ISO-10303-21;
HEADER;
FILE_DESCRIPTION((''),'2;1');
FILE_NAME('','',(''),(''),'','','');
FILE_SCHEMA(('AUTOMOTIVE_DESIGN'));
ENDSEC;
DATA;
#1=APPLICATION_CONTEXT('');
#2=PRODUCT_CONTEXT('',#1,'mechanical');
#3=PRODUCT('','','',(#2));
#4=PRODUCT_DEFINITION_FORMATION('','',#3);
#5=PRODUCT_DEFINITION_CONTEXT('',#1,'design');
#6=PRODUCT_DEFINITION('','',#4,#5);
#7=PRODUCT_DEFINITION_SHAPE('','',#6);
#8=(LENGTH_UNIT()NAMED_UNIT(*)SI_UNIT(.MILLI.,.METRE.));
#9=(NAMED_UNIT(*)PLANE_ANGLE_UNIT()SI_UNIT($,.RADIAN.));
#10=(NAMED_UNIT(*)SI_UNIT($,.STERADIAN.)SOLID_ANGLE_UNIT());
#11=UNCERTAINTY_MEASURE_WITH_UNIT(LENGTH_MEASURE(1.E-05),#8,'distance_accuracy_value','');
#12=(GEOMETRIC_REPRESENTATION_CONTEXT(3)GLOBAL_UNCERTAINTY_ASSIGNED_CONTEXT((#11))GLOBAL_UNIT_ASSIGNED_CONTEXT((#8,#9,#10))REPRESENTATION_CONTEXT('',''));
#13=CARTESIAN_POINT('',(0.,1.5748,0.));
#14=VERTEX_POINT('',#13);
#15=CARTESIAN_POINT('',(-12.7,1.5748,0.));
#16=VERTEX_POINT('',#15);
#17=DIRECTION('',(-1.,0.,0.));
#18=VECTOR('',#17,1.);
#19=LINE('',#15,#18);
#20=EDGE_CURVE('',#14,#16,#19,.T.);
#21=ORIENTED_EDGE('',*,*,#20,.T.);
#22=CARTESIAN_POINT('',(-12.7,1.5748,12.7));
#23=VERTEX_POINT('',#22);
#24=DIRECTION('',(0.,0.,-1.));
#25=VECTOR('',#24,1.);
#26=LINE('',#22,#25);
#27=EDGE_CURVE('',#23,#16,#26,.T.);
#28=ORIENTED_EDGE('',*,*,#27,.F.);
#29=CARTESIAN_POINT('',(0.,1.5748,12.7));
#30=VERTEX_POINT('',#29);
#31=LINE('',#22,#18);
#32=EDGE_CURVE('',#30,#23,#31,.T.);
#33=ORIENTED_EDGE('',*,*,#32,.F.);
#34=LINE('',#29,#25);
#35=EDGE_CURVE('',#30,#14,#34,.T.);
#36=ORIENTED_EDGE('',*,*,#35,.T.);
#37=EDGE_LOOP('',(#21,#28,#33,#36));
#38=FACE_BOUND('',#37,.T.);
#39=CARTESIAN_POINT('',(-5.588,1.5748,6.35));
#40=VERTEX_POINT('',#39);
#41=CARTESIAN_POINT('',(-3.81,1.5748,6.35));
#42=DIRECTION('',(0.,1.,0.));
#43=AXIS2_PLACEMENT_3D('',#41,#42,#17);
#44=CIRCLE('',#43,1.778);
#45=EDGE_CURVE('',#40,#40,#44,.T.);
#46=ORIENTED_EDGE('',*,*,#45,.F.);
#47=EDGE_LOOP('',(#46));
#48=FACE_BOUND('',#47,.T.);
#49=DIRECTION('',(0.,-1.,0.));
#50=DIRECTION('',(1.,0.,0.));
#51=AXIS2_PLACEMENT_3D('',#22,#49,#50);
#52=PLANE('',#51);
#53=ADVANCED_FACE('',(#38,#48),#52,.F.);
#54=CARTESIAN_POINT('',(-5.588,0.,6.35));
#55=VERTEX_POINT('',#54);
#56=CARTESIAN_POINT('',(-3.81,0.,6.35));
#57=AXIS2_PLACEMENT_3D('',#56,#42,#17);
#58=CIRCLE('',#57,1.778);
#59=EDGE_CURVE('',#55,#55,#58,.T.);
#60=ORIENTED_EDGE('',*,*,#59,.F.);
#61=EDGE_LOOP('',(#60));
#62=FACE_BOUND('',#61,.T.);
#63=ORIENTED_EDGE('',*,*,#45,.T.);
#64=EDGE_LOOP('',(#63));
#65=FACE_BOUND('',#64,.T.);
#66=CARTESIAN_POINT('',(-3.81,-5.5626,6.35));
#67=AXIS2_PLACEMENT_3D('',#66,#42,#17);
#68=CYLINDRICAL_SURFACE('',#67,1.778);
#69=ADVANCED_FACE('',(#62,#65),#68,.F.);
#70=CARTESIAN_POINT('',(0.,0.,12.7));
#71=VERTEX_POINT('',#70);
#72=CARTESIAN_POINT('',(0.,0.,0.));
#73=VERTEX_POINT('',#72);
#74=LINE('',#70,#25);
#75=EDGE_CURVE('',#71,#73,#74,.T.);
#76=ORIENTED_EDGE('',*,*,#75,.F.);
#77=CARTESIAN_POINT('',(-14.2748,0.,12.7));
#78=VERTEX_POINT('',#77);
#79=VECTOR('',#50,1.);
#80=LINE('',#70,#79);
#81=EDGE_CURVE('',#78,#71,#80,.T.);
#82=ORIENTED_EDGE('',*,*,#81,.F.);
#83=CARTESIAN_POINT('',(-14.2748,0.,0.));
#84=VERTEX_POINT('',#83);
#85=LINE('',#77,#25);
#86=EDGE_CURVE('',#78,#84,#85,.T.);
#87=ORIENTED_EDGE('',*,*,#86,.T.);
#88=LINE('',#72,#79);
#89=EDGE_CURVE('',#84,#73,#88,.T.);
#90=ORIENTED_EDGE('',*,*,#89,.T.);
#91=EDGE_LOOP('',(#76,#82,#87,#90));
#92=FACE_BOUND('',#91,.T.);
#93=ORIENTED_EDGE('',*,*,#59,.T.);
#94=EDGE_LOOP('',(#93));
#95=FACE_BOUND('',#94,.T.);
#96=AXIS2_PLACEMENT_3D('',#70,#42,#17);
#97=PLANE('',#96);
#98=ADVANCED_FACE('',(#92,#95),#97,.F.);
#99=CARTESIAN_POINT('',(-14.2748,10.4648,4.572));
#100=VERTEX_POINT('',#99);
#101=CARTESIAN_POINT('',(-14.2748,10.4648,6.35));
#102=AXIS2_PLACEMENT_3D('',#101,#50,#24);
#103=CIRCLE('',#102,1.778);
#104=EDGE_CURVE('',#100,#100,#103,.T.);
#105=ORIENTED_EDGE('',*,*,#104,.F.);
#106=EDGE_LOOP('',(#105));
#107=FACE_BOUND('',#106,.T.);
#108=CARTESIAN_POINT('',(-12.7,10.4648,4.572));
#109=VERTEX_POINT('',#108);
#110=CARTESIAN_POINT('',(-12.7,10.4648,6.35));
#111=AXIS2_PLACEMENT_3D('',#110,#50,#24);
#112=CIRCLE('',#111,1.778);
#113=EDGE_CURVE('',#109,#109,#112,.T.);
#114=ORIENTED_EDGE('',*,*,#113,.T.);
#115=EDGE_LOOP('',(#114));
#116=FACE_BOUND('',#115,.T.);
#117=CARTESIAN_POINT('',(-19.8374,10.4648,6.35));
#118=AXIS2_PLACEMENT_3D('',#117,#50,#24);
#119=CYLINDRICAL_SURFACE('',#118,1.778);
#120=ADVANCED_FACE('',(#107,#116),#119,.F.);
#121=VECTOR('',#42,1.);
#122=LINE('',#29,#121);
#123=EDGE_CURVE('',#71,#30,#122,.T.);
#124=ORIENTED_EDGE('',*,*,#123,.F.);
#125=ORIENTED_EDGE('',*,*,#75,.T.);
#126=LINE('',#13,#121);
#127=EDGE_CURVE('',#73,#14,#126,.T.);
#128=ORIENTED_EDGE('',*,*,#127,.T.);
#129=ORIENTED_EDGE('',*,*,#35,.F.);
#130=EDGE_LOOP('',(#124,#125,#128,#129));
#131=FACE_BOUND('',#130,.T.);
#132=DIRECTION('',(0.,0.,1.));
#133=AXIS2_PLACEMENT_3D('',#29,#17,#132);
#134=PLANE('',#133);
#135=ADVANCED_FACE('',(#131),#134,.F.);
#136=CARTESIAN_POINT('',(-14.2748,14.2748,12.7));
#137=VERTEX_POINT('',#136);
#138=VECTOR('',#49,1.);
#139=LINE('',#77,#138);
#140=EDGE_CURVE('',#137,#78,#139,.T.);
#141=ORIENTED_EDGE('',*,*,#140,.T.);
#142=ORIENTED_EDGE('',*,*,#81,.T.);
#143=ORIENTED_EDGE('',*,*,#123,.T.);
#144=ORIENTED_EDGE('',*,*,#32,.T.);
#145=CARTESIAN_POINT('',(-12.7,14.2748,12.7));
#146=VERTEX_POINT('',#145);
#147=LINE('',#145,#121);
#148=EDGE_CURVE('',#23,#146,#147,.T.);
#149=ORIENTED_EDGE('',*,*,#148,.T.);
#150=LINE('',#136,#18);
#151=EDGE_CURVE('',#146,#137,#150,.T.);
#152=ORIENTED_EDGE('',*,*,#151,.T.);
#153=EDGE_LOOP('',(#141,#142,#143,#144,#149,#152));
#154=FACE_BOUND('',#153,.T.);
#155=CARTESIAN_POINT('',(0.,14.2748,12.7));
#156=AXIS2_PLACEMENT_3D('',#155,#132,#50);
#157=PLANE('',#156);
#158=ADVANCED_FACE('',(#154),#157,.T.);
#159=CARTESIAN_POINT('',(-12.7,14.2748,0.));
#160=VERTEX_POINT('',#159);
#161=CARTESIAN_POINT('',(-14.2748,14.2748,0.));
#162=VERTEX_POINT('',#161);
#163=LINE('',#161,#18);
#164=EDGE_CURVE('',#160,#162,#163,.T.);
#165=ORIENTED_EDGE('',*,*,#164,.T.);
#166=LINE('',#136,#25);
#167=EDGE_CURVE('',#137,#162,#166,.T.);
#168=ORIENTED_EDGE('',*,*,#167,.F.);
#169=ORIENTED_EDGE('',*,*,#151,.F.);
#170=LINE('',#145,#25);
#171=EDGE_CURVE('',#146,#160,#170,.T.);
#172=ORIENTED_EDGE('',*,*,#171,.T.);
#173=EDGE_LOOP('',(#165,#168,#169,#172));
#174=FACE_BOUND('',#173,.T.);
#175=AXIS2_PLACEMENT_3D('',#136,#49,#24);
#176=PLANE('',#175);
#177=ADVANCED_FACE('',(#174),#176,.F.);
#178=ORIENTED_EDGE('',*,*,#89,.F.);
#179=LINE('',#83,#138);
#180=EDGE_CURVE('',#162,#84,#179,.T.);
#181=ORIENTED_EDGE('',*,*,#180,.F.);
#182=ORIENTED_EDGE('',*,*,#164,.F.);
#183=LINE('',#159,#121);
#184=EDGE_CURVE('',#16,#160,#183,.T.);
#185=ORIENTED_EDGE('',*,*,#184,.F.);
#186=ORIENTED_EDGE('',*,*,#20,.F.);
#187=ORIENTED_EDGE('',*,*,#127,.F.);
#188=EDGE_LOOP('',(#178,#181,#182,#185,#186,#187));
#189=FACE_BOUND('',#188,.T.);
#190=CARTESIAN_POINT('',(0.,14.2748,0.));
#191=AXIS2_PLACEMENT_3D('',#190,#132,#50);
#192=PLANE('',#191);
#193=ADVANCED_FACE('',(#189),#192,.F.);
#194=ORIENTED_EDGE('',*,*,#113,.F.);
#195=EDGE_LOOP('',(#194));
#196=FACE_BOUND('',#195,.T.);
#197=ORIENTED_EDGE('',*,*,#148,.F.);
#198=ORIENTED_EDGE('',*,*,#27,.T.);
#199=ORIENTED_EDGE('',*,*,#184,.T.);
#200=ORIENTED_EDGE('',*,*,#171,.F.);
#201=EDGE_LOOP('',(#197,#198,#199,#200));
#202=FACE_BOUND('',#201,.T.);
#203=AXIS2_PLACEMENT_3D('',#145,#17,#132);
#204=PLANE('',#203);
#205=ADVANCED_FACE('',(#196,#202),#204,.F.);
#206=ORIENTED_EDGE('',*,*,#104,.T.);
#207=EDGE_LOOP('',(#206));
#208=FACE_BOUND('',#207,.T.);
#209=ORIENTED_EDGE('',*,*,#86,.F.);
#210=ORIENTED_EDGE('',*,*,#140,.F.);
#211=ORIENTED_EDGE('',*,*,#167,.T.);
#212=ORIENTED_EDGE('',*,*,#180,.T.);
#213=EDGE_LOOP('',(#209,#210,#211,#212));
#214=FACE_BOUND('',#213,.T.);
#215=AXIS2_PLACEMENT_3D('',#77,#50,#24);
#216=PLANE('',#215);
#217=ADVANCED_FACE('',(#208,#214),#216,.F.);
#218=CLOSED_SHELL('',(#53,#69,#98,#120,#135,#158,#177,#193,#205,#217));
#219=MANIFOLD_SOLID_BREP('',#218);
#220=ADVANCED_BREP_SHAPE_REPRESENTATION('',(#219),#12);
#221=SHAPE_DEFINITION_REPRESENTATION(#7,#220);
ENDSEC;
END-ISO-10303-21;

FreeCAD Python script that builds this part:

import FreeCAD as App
import Part
import Sketcher
Q = App.Units.Quantity


def add_polygon(sketch, points):
    """Adds a closed chain of lines whose ends are joined by coincident constraints."""
    first, n = sketch.GeometryCount, len(points)
    for a, b in zip(points, points[1:] + points[:1]):
        sketch.addGeometry(Part.LineSegment(App.Vector(*a, 0), App.Vector(*b, 0)), False)
    for i in range(n):
        sketch.addConstraint(Sketcher.Constraint("Coincident", first + i, 2, first + (i + 1) % n, 1))

doc = App.newDocument("Part")
body = doc.addObject("PartDesign::Body", "Body")

# Sketch on XY plane
sketch1 = doc.addObject("Sketcher::SketchObject", "Sketch")
body.addObject(sketch1)
sketch1.AttachmentSupport = (doc.XY_Plane, [""])
sketch1.MapMode = "FlatFace"
add_polygon(sketch1, [(-14.3, 0), (0, 0), (0, 1.6), (-12.7, 1.6), (-12.7, 14.3), (-14.3, 14.3)])  # lines 0-5
sketch1.addConstraint(Sketcher.Constraint("Horizontal", 0))
sketch1.addConstraint(Sketcher.Constraint("Vertical", 1))
sketch1.addConstraint(Sketcher.Constraint("Horizontal", 2))
sketch1.addConstraint(Sketcher.Constraint("Vertical", 3))
sketch1.addConstraint(Sketcher.Constraint("Horizontal", 4))
sketch1.addConstraint(Sketcher.Constraint("Vertical", 5))
sketch1.addConstraint(Sketcher.Constraint("Coincident", 0, 2, -1, 1))
sketch1.addConstraint(Sketcher.Constraint("Equal", 4, 1))
sketch1.addConstraint(Sketcher.Constraint("Equal", 2, 3))
sketch1.addConstraint(Sketcher.Constraint("DistanceX", 2, 2, 2, 1, Q("0.5 in")))
sketch1.addConstraint(Sketcher.Constraint("DistanceX", 0, 1, 0, 2, Q("0.562 in")))
pad1 = doc.addObject("PartDesign::Pad", "Pad")
body.addObject(pad1)
pad1.Profile = sketch1
pad1.Length = Q("0.5 in")

# Sketch on YZ plane
sketch2 = doc.addObject("Sketcher::SketchObject", "Sketch001")
body.addObject(sketch2)
sketch2.AttachmentSupport = (doc.YZ_Plane, [""])
sketch2.MapMode = "FlatFace"
sketch2.AttachmentOffset = App.Placement(App.Vector(0, 0, -0.5 * 25.4), App.Rotation())
sketch2.addGeometry(Part.Circle(App.Vector(10.5, 6.3, 0), App.Vector(0, 0, 1), 1.8), False)
sketch2.addConstraint(Sketcher.Constraint("Diameter", 0, Q("0.14 in")))
sketch2.addConstraint(Sketcher.Constraint("DistanceY", -1, 1, 0, 3, Q("0.25 in")))
sketch2.addConstraint(Sketcher.Constraint("DistanceX", -1, 1, 0, 3, Q("0.412 in")))
pocket1 = doc.addObject("PartDesign::Pocket", "Pocket")
body.addObject(pocket1)
pocket1.Profile = sketch2
pocket1.Length = Q("0.281 in")

# Sketch on XZ plane
sketch3 = doc.addObject("Sketcher::SketchObject", "Sketch002")
body.addObject(sketch3)
sketch3.AttachmentSupport = (doc.XZ_Plane, [""])
sketch3.MapMode = "FlatFace"
sketch3.AttachmentOffset = App.Placement(App.Vector(0, 0, -0.062 * 25.4), App.Rotation())
sketch3.addGeometry(Part.Circle(App.Vector(-3.8, 6.3, 0), App.Vector(0, 0, 1), 1.8), False)
sketch3.addConstraint(Sketcher.Constraint("Diameter", 0, Q("0.14 in")))
sketch3.addConstraint(Sketcher.Constraint("DistanceX", 0, 3, -1, 1, Q("0.15 in")))
sketch3.addConstraint(Sketcher.Constraint("DistanceY", -1, 1, 0, 3, Q("0.25 in")))
pocket2 = doc.addObject("PartDesign::Pocket", "Pocket001")
body.addObject(pocket2)
pocket2.Profile = sketch3
pocket2.Length = Q("0.281 in")
pocket2.Reversed = True

doc.recompute()
